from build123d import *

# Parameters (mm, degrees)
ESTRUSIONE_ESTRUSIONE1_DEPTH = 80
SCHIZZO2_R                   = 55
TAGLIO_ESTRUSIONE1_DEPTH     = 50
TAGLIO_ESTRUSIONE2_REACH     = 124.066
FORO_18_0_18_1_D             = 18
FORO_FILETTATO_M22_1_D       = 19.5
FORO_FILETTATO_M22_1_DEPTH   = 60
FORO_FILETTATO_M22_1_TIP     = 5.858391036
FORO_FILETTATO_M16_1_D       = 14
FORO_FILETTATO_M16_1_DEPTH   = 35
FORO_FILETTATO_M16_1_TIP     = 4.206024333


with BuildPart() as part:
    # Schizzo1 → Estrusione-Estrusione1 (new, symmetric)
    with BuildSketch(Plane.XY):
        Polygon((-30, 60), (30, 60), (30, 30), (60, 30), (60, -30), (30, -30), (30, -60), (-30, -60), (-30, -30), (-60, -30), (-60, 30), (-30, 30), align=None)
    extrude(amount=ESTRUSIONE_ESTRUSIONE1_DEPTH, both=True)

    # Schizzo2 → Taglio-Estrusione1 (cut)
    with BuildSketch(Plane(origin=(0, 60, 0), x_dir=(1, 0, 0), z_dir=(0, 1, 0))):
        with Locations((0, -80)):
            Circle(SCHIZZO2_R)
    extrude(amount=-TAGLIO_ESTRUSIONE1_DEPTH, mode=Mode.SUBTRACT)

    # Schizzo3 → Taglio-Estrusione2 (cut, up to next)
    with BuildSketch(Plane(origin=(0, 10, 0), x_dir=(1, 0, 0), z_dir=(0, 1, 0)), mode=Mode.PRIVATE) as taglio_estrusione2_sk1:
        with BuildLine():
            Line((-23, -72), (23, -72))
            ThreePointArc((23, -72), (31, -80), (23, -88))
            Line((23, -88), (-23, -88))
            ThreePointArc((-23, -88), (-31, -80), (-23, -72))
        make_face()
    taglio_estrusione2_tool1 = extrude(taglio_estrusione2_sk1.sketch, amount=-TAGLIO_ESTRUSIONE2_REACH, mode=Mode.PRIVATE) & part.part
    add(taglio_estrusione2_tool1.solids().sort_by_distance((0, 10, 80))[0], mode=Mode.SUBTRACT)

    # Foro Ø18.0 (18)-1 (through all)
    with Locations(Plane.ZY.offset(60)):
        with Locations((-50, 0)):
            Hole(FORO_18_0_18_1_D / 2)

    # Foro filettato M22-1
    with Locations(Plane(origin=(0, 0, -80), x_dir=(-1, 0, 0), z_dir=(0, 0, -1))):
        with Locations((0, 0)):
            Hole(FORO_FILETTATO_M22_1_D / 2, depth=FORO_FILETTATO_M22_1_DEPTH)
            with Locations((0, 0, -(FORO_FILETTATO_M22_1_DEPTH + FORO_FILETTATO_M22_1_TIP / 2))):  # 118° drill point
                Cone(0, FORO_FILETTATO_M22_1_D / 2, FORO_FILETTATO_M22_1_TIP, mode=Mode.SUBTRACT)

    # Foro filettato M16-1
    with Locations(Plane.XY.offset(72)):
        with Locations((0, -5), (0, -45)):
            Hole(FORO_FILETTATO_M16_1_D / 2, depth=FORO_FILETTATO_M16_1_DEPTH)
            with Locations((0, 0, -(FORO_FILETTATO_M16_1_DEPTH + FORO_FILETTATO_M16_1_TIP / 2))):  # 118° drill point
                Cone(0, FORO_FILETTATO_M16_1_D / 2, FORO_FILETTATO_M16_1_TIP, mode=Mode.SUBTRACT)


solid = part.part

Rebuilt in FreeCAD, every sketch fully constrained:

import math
import FreeCAD as App
import Part
import Sketcher
from FreeCAD import Vector
Q = App.Units.Quantity


def add_polygon(sketch, points):
    """Adds a closed chain of lines whose ends are joined by coincident constraints."""
    first, n = sketch.GeometryCount, len(points)
    for a, b in zip(points, points[1:] + points[:1]):
        sketch.addGeometry(Part.LineSegment(App.Vector(*a, 0), App.Vector(*b, 0)), False)
    for i in range(n):
        sketch.addConstraint(Sketcher.Constraint("Coincident", first + i, 2, first + (i + 1) % n, 1))

doc = App.newDocument("Part")
params = doc.addObject("Spreadsheet::Sheet", "Params")
for row, (alias, value) in enumerate([
    ("sketch1_width", "60 mm"),
    ("sketch1_width2", "30 mm"),
    ("pad1_length", "160 mm"),
    ("sketch2_diameter", "110 mm"),
    ("pocket1_length", "50 mm"),
    ("sketch3_radius", "8 mm"),
    ("sketch3_width", "46 mm"),
    ("sketch4_diameter", "18 mm"),
    ("hole_diameter", "18 mm"),
    ("sketch5_diameter", "19.5 mm"),
    ("hole2_diameter", "19.5 mm"),
    ("hole2_depth", "60 mm"),
    ("sketch6_diameter", "14 mm"),
    ("hole3_diameter", "14 mm"),
    ("hole3_depth", "35 mm"),
], start=1):
    params.set(f"A{row}", alias)
    params.set(f"B{row}", "=" + value)
    params.setAlias(f"B{row}", alias)

body = doc.addObject("PartDesign::Body", "Body")

sketch1 = body.newObject("Sketcher::SketchObject", "Sketch")
sketch1.AttachmentSupport = (doc.getObject("XY_Plane"), [""])
sketch1.MapMode = "FlatFace"
add_polygon(sketch1, [(30, 60), (-30, 60), (-30, 30), (-60, 30), (-60, -30), (-30, -30), (-30, -60), (30, -60), (30, -30), (60, -30), (60, 30), (30, 30)])
sketch1.addConstraint(Sketcher.Constraint("Horizontal", 0))
sketch1.addConstraint(Sketcher.Constraint("Vertical", 1))
sketch1.addConstraint(Sketcher.Constraint("Horizontal", 2))
sketch1.addConstraint(Sketcher.Constraint("Vertical", 3))
sketch1.addConstraint(Sketcher.Constraint("Horizontal", 4))
sketch1.addConstraint(Sketcher.Constraint("Vertical", 5))
sketch1.addConstraint(Sketcher.Constraint("Horizontal", 6))
sketch1.addConstraint(Sketcher.Constraint("Vertical", 7))
sketch1.addConstraint(Sketcher.Constraint("Horizontal", 8))
sketch1.addConstraint(Sketcher.Constraint("Vertical", 9))
sketch1.addConstraint(Sketcher.Constraint("Horizontal", 10))
sketch1.addConstraint(Sketcher.Constraint("Vertical", 11))
sketch1.addConstraint(Sketcher.Constraint("Symmetric", 0, 2, 6, 2, -1, 1))
sketch1.addConstraint(Sketcher.Constraint("Symmetric", 2, 2, 8, 2, -1, 1))
sketch1.addConstraint(Sketcher.Constraint("Symmetric", 4, 2, 10, 2, -1, 1))
sketch1.addConstraint(Sketcher.Constraint("Symmetric", 4, 2, 7, 2, -2))
sketch1.addConstraint(Sketcher.Constraint("Equal", 10, 1))
sketch1.addConstraint(Sketcher.Constraint("Equal", 6, 3))
sketch1.addConstraint(Sketcher.Constraint("DistanceX", 0, 2, 0, 1, Q("60 mm")))
sketch1.addConstraint(Sketcher.Constraint("DistanceX", 2, 2, 2, 1, Q("30 mm")))
sketch1.setExpression("Constraints[30]", "Params.sketch1_width")
sketch1.setExpression("Constraints[31]", "Params.sketch1_width2")
pad1 = body.newObject("PartDesign::Pad", "Pad")
pad1.Profile = sketch1
pad1.setExpression("Length", "Params.pad1_length")
pad1.Midplane = True

sketch2 = body.newObject("Sketcher::SketchObject", "Sketch001")
sketch2.AttachmentSupport = (doc.getObject("XZ_Plane"), [""])
sketch2.MapMode = "FlatFace"
sketch2.AttachmentOffset = App.Placement(Vector(0, 0, -60), App.Rotation())
sketch2.addGeometry(Part.Circle(Vector(0, 80, 0), Vector(0, 0, 1), 55), False)
sketch2.addConstraint(Sketcher.Constraint("PointOnObject", 0, 3, -2))
sketch2.addConstraint(Sketcher.Constraint("Diameter", 0, Q("110 mm")))
sketch2.addConstraint(Sketcher.Constraint("DistanceY", -1, 1, 0, 3, Q("80 mm")))
sketch2.setExpression("Constraints[1]", "Params.sketch2_diameter")
pocket1 = body.newObject("PartDesign::Pocket", "Pocket")
pocket1.Profile = sketch2
pocket1.setExpression("Length", "Params.pocket1_length")
pocket1.Reversed = True

sketch3 = body.newObject("Sketcher::SketchObject", "Sketch002")
sketch3.AttachmentSupport = (doc.getObject("XZ_Plane"), [""])
sketch3.MapMode = "FlatFace"
sketch3.AttachmentOffset = App.Placement(Vector(0, 0, -10), App.Rotation())
sketch3.addGeometry(Part.LineSegment(Vector(23, 72, 0), Vector(-23, 72, 0)), False)
sketch3.addGeometry(Part.ArcOfCircle(Part.Circle(Vector(-23, 80, 0), Vector(0, 0, 1), 8), math.radians(90), math.radians(270)), False)
sketch3.addGeometry(Part.LineSegment(Vector(-23, 88, 0), Vector(23, 88, 0)), False)
sketch3.addGeometry(Part.ArcOfCircle(Part.Circle(Vector(23, 80, 0), Vector(0, 0, 1), 8), math.radians(-90), math.radians(90)), False)
sketch3.addConstraint(Sketcher.Constraint("Tangent", 0, 2, 1, 2))
sketch3.addConstraint(Sketcher.Constraint("Tangent", 1, 1, 2, 1))
sketch3.addConstraint(Sketcher.Constraint("Tangent", 2, 2, 3, 2))
sketch3.addConstraint(Sketcher.Constraint("Tangent", 3, 1, 0, 1))
sketch3.addConstraint(Sketcher.Constraint("Horizontal", 0))
sketch3.addConstraint(Sketcher.Constraint("Horizontal", 2))
sketch3.addConstraint(Sketcher.Constraint("Radius", 1, Q("8 mm")))
sketch3.addConstraint(Sketcher.Constraint("DistanceX", 0, 2, 0, 1, Q("46 mm")))
sketch3.addConstraint(Sketcher.Constraint("DistanceX", 1, 3, -1, 1, Q("23 mm")))
sketch3.addConstraint(Sketcher.Constraint("DistanceY", -1, 1, 1, 3, Q("80 mm")))
sketch3.setExpression("Constraints[6]", "Params.sketch3_radius")
sketch3.setExpression("Constraints[7]", "Params.sketch3_width")
pocket2 = body.newObject("PartDesign::Pocket", "Pocket001")
pocket2.Profile = sketch3
pocket2.Type = "UpToFirst"
pocket2.Reversed = True

sketch4 = body.newObject("Sketcher::SketchObject", "Sketch003")
sketch4.AttachmentSupport = (doc.getObject("YZ_Plane"), [""])
sketch4.MapMode = "FlatFace"
sketch4.AttachmentOffset = App.Placement(Vector(0, 0, -60), App.Rotation())
sketch4.addGeometry(Part.Circle(Vector(0, -50, 0), Vector(0, 0, 1), 9), False)
sketch4.addConstraint(Sketcher.Constraint("PointOnObject", 0, 3, -2))
sketch4.addConstraint(Sketcher.Constraint("Diameter", 0, Q("18 mm")))
sketch4.addConstraint(Sketcher.Constraint("DistanceY", 0, 3, -1, 1, Q("50 mm")))
sketch4.setExpression("Constraints[1]", "Params.sketch4_diameter")
doc.recompute()
hole = body.newObject("PartDesign::Hole", "Hole")
hole.Profile = sketch4
hole.ThreadType = "None"
hole.setExpression("Diameter", "Params.hole_diameter")
hole.DepthType = "ThroughAll"
hole.Reversed = True

sketch5 = body.newObject("Sketcher::SketchObject", "Sketch004")
sketch5.AttachmentSupport = (doc.getObject("XY_Plane"), [""])
sketch5.MapMode = "FlatFace"
sketch5.AttachmentOffset = App.Placement(Vector(0, 0, -80), App.Rotation())
sketch5.addGeometry(Part.Circle(Vector(0, 0, 0), Vector(0, 0, 1), 10), False)
sketch5.addConstraint(Sketcher.Constraint("Coincident", 0, 3, -1, 1))
sketch5.addConstraint(Sketcher.Constraint("Diameter", 0, Q("19.5 mm")))
sketch5.setExpression("Constraints[1]", "Params.sketch5_diameter")
doc.recompute()
hole2 = body.newObject("PartDesign::Hole", "Hole001")
hole2.Profile = sketch5
hole2.ThreadType = "None"
hole2.setExpression("Diameter", "Params.hole2_diameter")
hole2.DepthType = "Dimension"
hole2.setExpression("Depth", "Params.hole2_depth")
hole2.DrillPoint = "Angled"
hole2.DrillPointAngle = 118
hole2.Reversed = True

sketch6 = body.newObject("Sketcher::SketchObject", "Sketch005")
sketch6.AttachmentSupport = (doc.getObject("XY_Plane"), [""])
sketch6.MapMode = "FlatFace"
sketch6.AttachmentOffset = App.Placement(Vector(0, 0, 72), App.Rotation())
sketch6.addGeometry(Part.Circle(Vector(0, -5, 0), Vector(0, 0, 1), 7), False)
sketch6.addGeometry(Part.Circle(Vector(0, -45, 0), Vector(0, 0, 1), 7), False)
sketch6.addConstraint(Sketcher.Constraint("Equal", 0, 1))
sketch6.addConstraint(Sketcher.Constraint("PointOnObject", 0, 3, -2))
sketch6.addConstraint(Sketcher.Constraint("PointOnObject", 1, 3, -2))
sketch6.addConstraint(Sketcher.Constraint("Diameter", 0, Q("14 mm")))
sketch6.addConstraint(Sketcher.Constraint("DistanceY", 0, 3, -1, 1, Q("5 mm")))
sketch6.addConstraint(Sketcher.Constraint("DistanceY", 1, 3, -1, 1, Q("45 mm")))
sketch6.setExpression("Constraints[3]", "Params.sketch6_diameter")
doc.recompute()
hole3 = body.newObject("PartDesign::Hole", "Hole002")
hole3.Profile = sketch6
hole3.ThreadType = "None"
hole3.setExpression("Diameter", "Params.hole3_diameter")
hole3.DepthType = "Dimension"
hole3.setExpression("Depth", "Params.hole3_depth")
hole3.DrillPoint = "Angled"
hole3.DrillPointAngle = 118

doc.recompute()
